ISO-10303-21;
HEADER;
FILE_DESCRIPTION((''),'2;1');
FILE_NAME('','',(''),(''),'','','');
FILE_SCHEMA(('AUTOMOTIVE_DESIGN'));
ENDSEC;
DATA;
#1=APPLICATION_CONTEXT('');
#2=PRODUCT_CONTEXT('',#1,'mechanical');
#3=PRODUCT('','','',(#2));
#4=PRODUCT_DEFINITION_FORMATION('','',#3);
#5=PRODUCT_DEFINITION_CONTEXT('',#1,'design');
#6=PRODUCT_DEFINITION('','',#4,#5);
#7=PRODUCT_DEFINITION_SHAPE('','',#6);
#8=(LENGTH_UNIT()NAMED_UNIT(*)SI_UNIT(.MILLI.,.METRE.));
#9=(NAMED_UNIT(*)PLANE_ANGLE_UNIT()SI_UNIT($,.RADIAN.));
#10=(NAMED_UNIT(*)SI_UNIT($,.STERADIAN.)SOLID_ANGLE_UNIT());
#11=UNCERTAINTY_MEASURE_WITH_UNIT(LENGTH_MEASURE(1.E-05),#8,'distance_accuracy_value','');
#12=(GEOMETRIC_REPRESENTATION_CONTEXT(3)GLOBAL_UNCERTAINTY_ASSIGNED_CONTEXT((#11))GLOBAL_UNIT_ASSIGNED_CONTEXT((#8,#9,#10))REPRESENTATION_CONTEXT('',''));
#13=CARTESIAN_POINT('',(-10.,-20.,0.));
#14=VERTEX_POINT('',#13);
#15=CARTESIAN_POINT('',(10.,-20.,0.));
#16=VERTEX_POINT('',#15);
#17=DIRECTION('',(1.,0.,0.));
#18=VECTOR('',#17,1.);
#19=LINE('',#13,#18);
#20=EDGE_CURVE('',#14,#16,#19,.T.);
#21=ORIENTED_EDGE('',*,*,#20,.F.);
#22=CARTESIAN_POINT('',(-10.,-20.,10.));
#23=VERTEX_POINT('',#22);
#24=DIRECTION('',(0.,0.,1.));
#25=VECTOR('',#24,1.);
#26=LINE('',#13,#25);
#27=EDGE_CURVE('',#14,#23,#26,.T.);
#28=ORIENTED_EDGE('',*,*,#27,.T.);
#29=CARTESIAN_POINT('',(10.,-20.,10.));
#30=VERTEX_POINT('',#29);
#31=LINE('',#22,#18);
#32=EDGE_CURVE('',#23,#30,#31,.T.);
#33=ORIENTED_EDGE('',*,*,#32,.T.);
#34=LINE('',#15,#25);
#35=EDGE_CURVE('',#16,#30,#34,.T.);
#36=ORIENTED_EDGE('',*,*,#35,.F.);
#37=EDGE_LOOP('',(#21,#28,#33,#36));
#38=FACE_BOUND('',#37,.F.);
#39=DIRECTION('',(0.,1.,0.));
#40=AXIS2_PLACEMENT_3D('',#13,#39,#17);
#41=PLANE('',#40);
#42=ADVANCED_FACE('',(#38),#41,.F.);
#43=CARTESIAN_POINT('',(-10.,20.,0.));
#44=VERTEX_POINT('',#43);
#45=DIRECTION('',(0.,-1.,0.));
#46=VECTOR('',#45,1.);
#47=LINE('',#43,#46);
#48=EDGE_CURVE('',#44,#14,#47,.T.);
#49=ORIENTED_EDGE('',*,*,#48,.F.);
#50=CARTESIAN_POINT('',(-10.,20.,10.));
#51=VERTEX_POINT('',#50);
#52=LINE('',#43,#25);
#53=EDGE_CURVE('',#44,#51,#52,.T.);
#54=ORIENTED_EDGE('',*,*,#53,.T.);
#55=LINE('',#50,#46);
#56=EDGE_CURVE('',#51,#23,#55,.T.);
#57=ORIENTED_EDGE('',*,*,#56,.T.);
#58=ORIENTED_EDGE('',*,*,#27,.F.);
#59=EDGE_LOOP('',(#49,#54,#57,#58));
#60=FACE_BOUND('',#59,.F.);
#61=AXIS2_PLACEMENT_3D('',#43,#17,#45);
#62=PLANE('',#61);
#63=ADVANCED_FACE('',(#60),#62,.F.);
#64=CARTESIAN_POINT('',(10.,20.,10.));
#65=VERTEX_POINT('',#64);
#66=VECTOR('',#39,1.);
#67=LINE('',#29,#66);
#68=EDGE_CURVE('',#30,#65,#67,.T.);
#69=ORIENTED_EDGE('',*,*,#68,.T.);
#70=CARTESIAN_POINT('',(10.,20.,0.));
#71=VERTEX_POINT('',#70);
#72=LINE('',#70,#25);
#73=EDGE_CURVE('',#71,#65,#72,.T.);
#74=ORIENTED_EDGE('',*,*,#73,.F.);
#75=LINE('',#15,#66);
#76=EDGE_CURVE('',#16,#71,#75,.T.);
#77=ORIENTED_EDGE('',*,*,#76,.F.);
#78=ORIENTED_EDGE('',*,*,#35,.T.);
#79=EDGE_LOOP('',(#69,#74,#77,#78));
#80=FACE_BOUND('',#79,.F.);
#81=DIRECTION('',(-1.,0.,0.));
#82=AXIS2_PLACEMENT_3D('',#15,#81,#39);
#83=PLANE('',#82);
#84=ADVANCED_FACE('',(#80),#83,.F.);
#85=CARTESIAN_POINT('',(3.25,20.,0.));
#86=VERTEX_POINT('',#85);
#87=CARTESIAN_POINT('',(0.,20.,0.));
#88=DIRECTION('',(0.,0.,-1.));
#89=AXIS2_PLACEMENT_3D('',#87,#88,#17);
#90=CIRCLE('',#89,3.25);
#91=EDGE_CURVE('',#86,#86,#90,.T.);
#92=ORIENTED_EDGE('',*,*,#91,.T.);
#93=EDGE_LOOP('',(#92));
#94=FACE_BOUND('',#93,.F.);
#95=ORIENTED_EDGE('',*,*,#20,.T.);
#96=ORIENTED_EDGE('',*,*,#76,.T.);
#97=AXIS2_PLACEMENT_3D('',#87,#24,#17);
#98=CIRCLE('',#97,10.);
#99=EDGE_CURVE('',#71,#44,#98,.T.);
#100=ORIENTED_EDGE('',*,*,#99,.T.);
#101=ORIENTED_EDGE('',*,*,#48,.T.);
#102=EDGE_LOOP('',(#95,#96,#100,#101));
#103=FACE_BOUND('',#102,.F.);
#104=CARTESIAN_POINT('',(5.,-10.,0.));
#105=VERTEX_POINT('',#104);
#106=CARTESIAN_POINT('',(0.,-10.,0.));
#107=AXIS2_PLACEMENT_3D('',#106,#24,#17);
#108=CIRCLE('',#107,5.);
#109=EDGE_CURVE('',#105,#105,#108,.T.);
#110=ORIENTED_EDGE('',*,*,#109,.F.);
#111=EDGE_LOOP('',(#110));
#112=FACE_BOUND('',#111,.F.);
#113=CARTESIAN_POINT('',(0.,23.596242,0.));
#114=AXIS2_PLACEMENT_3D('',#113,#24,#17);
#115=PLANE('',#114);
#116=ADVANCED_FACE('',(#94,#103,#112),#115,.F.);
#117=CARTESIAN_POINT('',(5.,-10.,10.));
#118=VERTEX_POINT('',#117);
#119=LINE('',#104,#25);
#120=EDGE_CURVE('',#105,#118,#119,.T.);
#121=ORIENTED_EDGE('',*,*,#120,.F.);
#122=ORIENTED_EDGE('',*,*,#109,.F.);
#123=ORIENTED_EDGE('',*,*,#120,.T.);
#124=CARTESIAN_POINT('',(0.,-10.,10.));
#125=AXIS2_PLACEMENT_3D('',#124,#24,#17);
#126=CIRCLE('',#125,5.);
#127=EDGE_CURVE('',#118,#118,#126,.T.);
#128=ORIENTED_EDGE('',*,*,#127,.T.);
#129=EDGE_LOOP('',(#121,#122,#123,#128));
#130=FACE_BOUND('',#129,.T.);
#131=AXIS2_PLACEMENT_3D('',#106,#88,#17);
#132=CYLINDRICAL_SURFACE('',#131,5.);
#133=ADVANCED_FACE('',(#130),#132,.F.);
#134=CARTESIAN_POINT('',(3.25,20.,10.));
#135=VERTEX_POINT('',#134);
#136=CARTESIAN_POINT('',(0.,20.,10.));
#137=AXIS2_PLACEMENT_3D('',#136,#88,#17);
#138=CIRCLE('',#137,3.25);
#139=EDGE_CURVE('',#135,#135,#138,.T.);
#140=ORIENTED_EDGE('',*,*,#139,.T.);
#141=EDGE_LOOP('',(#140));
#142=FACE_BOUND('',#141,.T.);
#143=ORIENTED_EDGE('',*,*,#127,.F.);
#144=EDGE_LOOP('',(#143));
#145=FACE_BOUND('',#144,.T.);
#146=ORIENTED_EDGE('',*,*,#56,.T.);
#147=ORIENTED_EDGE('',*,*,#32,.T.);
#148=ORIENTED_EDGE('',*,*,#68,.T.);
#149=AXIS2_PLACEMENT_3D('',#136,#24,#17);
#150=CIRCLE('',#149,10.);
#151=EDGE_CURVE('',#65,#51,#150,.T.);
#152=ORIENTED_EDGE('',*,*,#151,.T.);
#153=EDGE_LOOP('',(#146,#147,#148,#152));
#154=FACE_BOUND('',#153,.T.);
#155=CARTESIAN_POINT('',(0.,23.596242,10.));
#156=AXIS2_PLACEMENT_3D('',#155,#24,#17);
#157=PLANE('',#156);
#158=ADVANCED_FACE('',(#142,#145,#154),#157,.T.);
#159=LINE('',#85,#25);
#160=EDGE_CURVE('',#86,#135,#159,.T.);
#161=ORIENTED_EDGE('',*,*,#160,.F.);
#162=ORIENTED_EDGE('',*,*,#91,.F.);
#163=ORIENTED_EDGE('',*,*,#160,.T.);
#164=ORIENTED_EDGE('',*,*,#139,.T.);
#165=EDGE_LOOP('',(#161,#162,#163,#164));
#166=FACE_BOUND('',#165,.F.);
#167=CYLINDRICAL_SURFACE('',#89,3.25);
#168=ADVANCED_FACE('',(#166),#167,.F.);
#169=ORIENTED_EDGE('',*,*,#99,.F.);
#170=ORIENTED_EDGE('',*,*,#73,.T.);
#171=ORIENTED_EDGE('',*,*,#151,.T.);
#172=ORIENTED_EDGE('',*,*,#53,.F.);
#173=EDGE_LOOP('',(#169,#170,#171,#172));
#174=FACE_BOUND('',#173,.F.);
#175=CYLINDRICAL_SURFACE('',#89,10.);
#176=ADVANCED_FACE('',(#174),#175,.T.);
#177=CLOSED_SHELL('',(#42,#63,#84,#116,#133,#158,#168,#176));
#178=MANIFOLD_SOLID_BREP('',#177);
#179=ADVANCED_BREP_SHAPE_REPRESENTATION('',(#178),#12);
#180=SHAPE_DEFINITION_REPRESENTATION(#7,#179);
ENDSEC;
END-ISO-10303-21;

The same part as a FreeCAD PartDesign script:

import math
import FreeCAD as App
import Part
import Sketcher

doc = App.newDocument("Part")
params = doc.addObject("Spreadsheet::Sheet", "Params")
for row, (alias, value) in enumerate([
    ("sketch1_diameter", "10 mm"),
    ("sketch1_radius", "10 mm"),
    ("sketch1_diameter2", "6.5 mm"),
    ("sketch1_height", "40 mm"),
    ("pad1_length", "10 mm"),
], start=1):
    params.set(f"A{row}", alias)
    params.set(f"B{row}", "=" + value)
    params.setAlias(f"B{row}", alias)

body = doc.addObject("PartDesign::Body", "Body")

# Sketch on XY plane
sketch1 = body.newObject("Sketcher::SketchObject", "Sketch")
sketch1.AttachmentSupport = (doc.getObject("XY_Plane"), [""])
sketch1.MapMode = "FlatFace"
sketch1.addGeometry([
    Part.ArcOfCircle(Part.Circle(App.Vector(0, 20, 0), App.Vector(0, 0, 1), 10), math.radians(0), math.radians(180)),  # 0
    Part.LineSegment(App.Vector(-10, 20, 0), App.Vector(-10, -20, 0)),  # 1
    Part.LineSegment(App.Vector(-10, -20, 0), App.Vector(10, -20, 0)),  # 2
    Part.LineSegment(App.Vector(10, -20, 0), App.Vector(10, 20, 0)),  # 3
    Part.Circle(App.Vector(0, -10, 0), App.Vector(0, 0, 1), 5),  # 4
    Part.Circle(App.Vector(0, 20, 0), App.Vector(0, 0, 1), 3.25),  # 5
], False)
sketch1.addConstraint([
    Sketcher.Constraint("Tangent", 0, 2, 1, 1),
    Sketcher.Constraint("Coincident", 1, 2, 2, 1),
    Sketcher.Constraint("Coincident", 2, 2, 3, 1),
    Sketcher.Constraint("Tangent", 3, 2, 0, 1),
    Sketcher.Constraint("Vertical", 1),
    Sketcher.Constraint("Horizontal", 2),
    Sketcher.Constraint("Vertical", 3),
    Sketcher.Constraint("Coincident", 5, 3, 0, 3),
    Sketcher.Constraint("Symmetric", 0, 2, 2, 2, -1, 1),
    Sketcher.Constraint("PointOnObject", 4, 3, -2),
    Sketcher.Constraint("Diameter", 4, 10.0),
    Sketcher.Constraint("Radius", 0, 10.0),
    Sketcher.Constraint("Diameter", 5, 6.5),
    Sketcher.Constraint("DistanceY", 1, 2, 1, 1, 40.0),
    Sketcher.Constraint("DistanceY", 4, 3, -1, 1, 10.0),
])
sketch1.setExpression("Constraints[10]", "Params.sketch1_diameter")
sketch1.setExpression("Constraints[11]", "Params.sketch1_radius")
sketch1.setExpression("Constraints[12]", "Params.sketch1_diameter2")
sketch1.setExpression("Constraints[13]", "Params.sketch1_height")
pad1 = body.newObject("PartDesign::Pad", "Pad")
pad1.Profile = sketch1
pad1.setExpression("Length", "Params.pad1_length")

doc.recompute()
